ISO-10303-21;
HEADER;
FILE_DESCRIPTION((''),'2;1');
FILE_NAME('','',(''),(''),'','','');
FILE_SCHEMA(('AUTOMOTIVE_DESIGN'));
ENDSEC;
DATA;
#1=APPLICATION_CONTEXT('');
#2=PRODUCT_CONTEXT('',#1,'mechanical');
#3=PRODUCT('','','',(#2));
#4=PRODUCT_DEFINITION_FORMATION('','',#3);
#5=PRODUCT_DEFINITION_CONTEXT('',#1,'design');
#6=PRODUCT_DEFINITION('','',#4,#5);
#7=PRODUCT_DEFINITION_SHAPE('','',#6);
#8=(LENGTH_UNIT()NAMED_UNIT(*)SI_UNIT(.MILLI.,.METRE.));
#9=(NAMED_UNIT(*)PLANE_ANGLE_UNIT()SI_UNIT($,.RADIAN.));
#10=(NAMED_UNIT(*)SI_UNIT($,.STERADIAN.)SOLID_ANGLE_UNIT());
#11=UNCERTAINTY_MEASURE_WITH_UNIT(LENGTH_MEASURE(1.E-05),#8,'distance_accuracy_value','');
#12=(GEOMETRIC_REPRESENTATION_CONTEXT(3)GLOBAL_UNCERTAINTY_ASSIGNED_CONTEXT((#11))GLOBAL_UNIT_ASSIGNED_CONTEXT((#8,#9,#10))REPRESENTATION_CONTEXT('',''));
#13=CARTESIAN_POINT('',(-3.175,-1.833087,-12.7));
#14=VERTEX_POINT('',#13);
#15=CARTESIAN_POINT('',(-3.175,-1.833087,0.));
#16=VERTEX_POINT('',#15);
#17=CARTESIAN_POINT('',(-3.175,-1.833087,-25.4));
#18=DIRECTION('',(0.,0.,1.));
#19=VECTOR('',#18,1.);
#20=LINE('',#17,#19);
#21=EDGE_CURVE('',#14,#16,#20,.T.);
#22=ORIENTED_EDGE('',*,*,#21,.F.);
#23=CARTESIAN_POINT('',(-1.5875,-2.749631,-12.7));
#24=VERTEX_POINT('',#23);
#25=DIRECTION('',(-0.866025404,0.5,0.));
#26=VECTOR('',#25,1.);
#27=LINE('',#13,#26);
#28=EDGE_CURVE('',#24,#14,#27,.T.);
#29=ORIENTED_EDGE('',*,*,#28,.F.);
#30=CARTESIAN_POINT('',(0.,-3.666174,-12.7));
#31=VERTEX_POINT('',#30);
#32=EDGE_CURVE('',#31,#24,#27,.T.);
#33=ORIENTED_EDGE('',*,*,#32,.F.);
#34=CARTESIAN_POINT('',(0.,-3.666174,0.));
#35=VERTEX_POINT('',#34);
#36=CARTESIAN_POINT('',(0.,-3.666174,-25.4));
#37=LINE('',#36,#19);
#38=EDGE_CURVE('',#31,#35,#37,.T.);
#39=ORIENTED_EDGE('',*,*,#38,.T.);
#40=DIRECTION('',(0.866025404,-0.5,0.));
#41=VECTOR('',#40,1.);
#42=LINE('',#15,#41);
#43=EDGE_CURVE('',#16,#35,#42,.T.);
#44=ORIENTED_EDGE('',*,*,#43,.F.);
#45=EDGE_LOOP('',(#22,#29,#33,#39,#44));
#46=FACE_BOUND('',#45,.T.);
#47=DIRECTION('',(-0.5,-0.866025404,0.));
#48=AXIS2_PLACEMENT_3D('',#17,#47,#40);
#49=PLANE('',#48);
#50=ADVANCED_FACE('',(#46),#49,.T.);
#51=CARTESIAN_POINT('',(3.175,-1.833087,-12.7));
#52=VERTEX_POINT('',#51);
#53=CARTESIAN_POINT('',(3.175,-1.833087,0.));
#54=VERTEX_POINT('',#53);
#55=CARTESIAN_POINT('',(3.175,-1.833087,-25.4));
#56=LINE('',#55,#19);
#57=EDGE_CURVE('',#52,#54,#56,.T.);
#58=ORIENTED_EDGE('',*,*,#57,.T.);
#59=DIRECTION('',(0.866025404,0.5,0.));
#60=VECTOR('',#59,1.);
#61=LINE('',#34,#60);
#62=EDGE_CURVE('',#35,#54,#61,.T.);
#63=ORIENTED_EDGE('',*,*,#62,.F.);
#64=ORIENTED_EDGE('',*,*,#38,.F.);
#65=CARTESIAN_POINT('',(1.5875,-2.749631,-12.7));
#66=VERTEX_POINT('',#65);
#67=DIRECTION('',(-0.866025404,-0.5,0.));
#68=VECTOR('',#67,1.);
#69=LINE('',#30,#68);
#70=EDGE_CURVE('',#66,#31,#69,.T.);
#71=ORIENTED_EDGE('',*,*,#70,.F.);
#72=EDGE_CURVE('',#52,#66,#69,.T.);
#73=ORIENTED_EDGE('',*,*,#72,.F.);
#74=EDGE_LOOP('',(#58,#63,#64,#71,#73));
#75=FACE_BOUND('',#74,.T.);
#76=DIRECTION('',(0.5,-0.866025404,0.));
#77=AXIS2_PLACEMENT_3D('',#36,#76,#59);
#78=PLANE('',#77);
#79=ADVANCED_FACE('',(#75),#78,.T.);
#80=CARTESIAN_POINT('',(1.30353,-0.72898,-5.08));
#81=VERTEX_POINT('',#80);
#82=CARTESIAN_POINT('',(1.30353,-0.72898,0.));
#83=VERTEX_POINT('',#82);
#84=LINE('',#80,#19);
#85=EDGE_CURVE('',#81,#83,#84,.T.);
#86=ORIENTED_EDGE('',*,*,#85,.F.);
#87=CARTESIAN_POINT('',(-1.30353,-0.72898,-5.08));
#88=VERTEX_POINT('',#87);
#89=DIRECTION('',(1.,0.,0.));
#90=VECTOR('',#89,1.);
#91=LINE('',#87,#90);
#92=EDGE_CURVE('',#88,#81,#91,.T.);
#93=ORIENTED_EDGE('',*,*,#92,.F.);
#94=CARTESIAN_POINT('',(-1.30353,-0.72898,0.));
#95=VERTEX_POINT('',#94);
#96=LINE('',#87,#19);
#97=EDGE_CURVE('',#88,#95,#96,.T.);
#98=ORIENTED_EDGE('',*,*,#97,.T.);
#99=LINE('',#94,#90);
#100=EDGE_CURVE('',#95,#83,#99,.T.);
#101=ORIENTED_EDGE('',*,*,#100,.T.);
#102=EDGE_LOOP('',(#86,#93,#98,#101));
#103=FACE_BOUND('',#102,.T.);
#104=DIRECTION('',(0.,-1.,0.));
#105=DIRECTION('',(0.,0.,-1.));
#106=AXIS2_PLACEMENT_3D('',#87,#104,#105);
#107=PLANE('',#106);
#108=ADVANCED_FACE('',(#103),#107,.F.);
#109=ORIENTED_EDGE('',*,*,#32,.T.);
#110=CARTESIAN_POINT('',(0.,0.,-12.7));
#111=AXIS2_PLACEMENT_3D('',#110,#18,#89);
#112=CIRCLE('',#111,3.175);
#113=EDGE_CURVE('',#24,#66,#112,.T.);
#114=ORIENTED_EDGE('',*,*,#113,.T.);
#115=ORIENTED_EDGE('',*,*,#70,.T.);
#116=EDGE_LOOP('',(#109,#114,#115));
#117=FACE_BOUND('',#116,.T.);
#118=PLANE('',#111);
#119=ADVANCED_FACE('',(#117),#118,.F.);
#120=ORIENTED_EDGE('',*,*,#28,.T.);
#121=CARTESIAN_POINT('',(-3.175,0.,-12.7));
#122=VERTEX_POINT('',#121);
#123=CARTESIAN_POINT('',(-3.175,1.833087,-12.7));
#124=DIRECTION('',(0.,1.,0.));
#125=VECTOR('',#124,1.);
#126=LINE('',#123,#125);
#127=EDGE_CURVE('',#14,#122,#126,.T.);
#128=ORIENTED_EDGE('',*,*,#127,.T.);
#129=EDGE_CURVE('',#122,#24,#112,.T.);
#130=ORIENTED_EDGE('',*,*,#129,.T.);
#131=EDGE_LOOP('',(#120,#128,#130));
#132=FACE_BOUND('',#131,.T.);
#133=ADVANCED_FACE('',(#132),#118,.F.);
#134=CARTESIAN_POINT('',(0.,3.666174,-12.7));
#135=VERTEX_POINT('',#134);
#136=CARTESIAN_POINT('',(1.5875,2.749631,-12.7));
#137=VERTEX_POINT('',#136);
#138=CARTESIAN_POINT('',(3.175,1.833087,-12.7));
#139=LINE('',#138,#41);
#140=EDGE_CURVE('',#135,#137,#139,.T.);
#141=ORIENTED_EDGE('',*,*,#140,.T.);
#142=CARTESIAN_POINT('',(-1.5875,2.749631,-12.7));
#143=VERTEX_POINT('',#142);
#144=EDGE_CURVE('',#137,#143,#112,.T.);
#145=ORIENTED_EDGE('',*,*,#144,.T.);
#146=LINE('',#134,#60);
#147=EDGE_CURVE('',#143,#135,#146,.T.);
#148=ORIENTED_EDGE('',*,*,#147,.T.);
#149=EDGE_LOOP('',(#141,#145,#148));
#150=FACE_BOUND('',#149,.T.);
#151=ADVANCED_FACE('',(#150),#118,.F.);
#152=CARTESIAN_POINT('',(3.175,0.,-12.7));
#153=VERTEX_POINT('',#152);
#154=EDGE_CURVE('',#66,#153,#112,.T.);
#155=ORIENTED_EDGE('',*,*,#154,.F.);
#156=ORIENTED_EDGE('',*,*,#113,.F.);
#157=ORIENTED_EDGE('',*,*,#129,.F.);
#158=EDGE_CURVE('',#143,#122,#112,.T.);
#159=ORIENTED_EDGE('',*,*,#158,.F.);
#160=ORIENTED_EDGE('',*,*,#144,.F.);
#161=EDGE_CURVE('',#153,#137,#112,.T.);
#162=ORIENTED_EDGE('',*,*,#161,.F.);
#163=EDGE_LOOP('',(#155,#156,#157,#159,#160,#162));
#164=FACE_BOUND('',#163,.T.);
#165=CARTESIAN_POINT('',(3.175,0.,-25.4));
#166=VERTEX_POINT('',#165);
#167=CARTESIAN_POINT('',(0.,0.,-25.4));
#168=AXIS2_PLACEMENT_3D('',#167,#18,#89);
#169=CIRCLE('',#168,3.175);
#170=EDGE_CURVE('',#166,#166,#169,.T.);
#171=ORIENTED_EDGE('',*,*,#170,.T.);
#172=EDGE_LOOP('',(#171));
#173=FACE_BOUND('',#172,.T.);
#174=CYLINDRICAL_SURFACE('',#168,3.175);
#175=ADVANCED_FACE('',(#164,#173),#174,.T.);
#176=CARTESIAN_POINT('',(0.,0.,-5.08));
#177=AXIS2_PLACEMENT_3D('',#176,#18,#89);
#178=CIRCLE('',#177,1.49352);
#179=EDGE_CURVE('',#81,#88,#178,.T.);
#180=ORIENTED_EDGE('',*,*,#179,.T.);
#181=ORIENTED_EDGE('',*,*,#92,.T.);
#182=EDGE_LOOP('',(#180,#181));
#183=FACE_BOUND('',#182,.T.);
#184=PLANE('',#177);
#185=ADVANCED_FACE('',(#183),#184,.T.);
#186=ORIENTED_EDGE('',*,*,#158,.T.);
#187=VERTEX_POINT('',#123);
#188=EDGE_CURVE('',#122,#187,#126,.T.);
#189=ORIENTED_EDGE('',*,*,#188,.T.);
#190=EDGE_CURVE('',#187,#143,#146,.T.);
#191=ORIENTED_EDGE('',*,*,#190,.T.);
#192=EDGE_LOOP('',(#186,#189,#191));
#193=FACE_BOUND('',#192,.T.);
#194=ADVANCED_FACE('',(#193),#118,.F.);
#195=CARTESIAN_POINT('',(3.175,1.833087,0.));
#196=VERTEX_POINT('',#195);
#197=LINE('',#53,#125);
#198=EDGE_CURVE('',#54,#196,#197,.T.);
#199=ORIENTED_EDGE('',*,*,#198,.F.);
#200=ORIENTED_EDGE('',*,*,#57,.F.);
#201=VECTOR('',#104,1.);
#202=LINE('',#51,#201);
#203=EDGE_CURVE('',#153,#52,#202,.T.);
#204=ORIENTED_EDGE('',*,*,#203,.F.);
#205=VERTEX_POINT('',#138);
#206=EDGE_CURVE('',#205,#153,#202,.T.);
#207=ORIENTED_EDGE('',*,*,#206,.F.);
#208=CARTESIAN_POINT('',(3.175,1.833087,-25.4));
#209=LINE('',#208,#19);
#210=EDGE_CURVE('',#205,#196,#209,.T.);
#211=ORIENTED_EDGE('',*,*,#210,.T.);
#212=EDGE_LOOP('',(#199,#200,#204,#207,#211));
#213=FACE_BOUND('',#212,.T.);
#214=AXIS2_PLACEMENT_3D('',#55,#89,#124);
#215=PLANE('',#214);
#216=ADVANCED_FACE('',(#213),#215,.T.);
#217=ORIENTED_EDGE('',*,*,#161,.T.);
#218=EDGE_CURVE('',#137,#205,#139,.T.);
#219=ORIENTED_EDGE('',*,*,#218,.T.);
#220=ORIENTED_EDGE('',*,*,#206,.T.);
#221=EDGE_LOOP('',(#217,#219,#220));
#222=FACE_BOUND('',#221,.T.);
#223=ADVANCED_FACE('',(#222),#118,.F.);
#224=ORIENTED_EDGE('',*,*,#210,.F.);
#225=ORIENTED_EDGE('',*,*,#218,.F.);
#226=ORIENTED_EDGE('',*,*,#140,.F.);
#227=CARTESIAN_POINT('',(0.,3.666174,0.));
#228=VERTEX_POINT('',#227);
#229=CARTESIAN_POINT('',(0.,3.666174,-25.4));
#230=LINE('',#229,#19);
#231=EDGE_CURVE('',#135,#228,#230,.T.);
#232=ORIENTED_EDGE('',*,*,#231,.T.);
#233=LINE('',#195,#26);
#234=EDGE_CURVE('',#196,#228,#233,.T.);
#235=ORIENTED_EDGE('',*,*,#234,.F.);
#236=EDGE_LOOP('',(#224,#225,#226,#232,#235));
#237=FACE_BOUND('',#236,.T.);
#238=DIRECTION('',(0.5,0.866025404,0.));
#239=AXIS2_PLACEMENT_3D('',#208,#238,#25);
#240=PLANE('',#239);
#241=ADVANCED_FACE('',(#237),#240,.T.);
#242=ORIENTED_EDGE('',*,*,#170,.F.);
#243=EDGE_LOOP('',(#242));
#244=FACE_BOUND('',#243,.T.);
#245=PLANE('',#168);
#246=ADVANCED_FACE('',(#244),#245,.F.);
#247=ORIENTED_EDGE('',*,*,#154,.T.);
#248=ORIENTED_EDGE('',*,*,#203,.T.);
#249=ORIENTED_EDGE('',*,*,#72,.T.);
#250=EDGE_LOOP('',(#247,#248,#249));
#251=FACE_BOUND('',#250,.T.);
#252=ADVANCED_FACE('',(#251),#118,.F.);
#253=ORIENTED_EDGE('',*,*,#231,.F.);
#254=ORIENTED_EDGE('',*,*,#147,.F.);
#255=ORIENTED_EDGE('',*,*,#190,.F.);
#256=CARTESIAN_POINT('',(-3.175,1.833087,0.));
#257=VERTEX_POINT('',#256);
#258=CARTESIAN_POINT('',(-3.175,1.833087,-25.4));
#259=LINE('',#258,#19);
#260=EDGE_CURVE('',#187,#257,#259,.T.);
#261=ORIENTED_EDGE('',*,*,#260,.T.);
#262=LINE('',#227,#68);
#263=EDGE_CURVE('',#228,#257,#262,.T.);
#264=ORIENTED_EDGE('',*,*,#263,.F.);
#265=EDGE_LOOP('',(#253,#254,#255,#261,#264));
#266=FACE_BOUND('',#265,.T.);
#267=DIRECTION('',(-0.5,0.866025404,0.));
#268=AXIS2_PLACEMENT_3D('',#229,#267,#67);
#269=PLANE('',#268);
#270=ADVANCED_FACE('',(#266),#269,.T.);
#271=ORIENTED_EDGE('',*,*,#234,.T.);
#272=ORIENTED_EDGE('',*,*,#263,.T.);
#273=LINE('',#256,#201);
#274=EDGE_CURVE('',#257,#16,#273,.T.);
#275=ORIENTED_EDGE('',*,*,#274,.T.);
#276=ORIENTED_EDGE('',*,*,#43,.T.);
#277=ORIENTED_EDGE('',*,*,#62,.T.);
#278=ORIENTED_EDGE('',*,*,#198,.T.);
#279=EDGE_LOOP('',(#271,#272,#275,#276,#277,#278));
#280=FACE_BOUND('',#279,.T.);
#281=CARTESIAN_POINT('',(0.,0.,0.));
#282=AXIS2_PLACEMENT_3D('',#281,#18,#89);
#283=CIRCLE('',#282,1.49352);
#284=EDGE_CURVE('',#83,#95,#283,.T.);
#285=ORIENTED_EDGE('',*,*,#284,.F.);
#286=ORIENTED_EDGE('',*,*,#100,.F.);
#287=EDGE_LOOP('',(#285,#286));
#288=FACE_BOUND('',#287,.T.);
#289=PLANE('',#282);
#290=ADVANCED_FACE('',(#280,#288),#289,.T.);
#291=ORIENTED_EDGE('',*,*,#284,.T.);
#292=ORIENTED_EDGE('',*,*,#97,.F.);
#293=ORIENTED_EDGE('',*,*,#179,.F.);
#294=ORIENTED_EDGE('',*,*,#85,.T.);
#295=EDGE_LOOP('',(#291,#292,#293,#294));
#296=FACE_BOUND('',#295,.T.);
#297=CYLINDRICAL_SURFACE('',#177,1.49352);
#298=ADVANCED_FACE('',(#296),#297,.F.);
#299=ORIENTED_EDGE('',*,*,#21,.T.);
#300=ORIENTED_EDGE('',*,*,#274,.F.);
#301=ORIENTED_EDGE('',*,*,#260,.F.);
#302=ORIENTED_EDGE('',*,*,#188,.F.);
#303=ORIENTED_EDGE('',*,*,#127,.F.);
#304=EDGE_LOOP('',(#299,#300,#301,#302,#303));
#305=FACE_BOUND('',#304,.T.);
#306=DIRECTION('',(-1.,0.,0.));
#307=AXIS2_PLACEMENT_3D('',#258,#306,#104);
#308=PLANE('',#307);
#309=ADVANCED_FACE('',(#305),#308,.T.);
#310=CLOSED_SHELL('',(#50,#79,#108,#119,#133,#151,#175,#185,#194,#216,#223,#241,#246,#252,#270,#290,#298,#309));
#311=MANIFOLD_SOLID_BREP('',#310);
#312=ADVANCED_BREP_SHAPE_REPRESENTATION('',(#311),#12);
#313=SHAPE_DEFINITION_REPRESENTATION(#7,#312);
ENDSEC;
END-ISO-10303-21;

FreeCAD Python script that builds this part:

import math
import FreeCAD as App
import Part
import Sketcher

V = App.Vector
Q = App.Units.Quantity

doc = App.newDocument("Part")
body = doc.addObject("PartDesign::Body", "Body")

# Sketch on XY plane
sketch1 = body.newObject("Sketcher::SketchObject", "Sketch")
sketch1.AttachmentSupport = (doc.getObject("XY_Plane"), [""])
sketch1.MapMode = "FlatFace"
sketch1.addGeometry([
    Part.LineSegment(V(0, 3.666174, 0), V(-3.175, 1.833087, 0)),  # 0
    Part.LineSegment(V(-3.175, 1.833087, 0), V(-3.175, -1.833087, 0)),  # 1
    Part.LineSegment(V(-3.175, -1.833087, 0), V(0, -3.666174, 0)),  # 2
    Part.LineSegment(V(0, -3.666174, 0), V(3.175, -1.833087, 0)),  # 3
    Part.LineSegment(V(3.175, -1.833087, 0), V(3.175, 1.833087, 0)),  # 4
    Part.LineSegment(V(3.175, 1.833087, 0), V(0, 3.666174, 0)),  # 5
], False)
sketch1.addConstraint([
    Sketcher.Constraint("Coincident", 0, 2, 1, 1),
    Sketcher.Constraint("Coincident", 1, 2, 2, 1),
    Sketcher.Constraint("Coincident", 2, 2, 3, 1),
    Sketcher.Constraint("Coincident", 3, 2, 4, 1),
    Sketcher.Constraint("Coincident", 4, 2, 5, 1),
    Sketcher.Constraint("Coincident", 5, 2, 0, 1),
    Sketcher.Constraint("Vertical", 1),
    Sketcher.Constraint("Vertical", 4),
    Sketcher.Constraint("Symmetric", 0, 2, 3, 2, -1, 1),
    Sketcher.Constraint("Symmetric", 2, 2, 5, 2, -1, 1),
    Sketcher.Constraint("PointOnObject", 2, 2, -2),
    Sketcher.Constraint("Parallel", 2, 5),
    Sketcher.Constraint("Horizontal", 1, 2, 3, 2),
    Sketcher.Constraint("Angle", 0, Q("-150 deg")),
    Sketcher.Constraint("DistanceX", 1, 2, 3, 2, Q("0.25 in")),
    Sketcher.Constraint("DistanceY", 1, 2, 1, 1, Q("3.666174 mm")),
])
pad1 = body.newObject("PartDesign::Pad", "Pad")
pad1.Profile = sketch1
pad1.Length = Q("1 in")
pad1.Reversed = True

# Sketch on XY plane
sketch2 = body.newObject("Sketcher::SketchObject", "Sketch001")
sketch2.AttachmentSupport = (doc.getObject("XY_Plane"), [""])
sketch2.MapMode = "FlatFace"
sketch2.addGeometry([
    Part.LineSegment(V(-1.30353, -0.72898, 0), V(1.30353, -0.72898, 0)),
    Part.ArcOfCircle(Part.Circle(V(0, 0, 0), V(0, 0, 1), 1.49352), math.radians(-29.215464), math.radians(209.215464)),
], False)
sketch2.addConstraint([
    Sketcher.Constraint("Coincident", 0, 1, 1, 2),
    Sketcher.Constraint("Coincident", 1, 1, 0, 2),
    Sketcher.Constraint("Horizontal", 0),
    Sketcher.Constraint("Coincident", 1, 3, -1, 1),
    Sketcher.Constraint("Radius", 1, Q("0.0588 in")),
    Sketcher.Constraint("DistanceY", 0, 1, -1, 1, Q("0.0287 in")),
])
pocket1 = body.newObject("PartDesign::Pocket", "Pocket")
pocket1.Profile = sketch2
pocket1.Length = Q("0.2 in")

# Sketch on XY plane
sketch3 = body.newObject("Sketcher::SketchObject", "Sketch002")
sketch3.AttachmentSupport = (doc.getObject("XY_Plane"), [""])
sketch3.MapMode = "FlatFace"
sketch3.AttachmentOffset = App.Placement(V(0, 0, -0.5 * 25.4), App.Rotation())
sketch3.addGeometry([
    Part.LineSegment(V(-6.894, 7.385, 0), V(-6.894, -7.385, 0)),  # 0
    Part.LineSegment(V(-6.894, -7.385, 0), V(6.894, -7.385, 0)),  # 1
    Part.LineSegment(V(6.894, -7.385, 0), V(6.894, 7.385, 0)),  # 2
    Part.LineSegment(V(6.894, 7.385, 0), V(-6.894, 7.385, 0)),  # 3
    Part.Circle(V(0, 0, 0), V(0, 0, 1), 3.175),  # 4
], False)
sketch3.addConstraint([
    Sketcher.Constraint("Coincident", 0, 2, 1, 1),
    Sketcher.Constraint("Coincident", 1, 2, 2, 1),
    Sketcher.Constraint("Coincident", 2, 2, 3, 1),
    Sketcher.Constraint("Coincident", 3, 2, 0, 1),
    Sketcher.Constraint("Vertical", 0),
    Sketcher.Constraint("Horizontal", 1),
    Sketcher.Constraint("Vertical", 2),
    Sketcher.Constraint("Horizontal", 3),
    Sketcher.Constraint("Coincident", 4, 3, -1, 1),
    Sketcher.Constraint("Symmetric", 0, 2, 2, 2, -1, 1),
    Sketcher.Constraint("Diameter", 4, Q("0.25 in")),
    Sketcher.Constraint("DistanceX", 1, 1, 1, 2, Q("13.788 mm")),
    Sketcher.Constraint("DistanceY", 0, 2, 0, 1, Q("14.77 mm")),
])
pocket2 = body.newObject("PartDesign::Pocket", "Pocket001")
pocket2.Profile = sketch3
pocket2.Type = "ThroughAll"

doc.recompute()
